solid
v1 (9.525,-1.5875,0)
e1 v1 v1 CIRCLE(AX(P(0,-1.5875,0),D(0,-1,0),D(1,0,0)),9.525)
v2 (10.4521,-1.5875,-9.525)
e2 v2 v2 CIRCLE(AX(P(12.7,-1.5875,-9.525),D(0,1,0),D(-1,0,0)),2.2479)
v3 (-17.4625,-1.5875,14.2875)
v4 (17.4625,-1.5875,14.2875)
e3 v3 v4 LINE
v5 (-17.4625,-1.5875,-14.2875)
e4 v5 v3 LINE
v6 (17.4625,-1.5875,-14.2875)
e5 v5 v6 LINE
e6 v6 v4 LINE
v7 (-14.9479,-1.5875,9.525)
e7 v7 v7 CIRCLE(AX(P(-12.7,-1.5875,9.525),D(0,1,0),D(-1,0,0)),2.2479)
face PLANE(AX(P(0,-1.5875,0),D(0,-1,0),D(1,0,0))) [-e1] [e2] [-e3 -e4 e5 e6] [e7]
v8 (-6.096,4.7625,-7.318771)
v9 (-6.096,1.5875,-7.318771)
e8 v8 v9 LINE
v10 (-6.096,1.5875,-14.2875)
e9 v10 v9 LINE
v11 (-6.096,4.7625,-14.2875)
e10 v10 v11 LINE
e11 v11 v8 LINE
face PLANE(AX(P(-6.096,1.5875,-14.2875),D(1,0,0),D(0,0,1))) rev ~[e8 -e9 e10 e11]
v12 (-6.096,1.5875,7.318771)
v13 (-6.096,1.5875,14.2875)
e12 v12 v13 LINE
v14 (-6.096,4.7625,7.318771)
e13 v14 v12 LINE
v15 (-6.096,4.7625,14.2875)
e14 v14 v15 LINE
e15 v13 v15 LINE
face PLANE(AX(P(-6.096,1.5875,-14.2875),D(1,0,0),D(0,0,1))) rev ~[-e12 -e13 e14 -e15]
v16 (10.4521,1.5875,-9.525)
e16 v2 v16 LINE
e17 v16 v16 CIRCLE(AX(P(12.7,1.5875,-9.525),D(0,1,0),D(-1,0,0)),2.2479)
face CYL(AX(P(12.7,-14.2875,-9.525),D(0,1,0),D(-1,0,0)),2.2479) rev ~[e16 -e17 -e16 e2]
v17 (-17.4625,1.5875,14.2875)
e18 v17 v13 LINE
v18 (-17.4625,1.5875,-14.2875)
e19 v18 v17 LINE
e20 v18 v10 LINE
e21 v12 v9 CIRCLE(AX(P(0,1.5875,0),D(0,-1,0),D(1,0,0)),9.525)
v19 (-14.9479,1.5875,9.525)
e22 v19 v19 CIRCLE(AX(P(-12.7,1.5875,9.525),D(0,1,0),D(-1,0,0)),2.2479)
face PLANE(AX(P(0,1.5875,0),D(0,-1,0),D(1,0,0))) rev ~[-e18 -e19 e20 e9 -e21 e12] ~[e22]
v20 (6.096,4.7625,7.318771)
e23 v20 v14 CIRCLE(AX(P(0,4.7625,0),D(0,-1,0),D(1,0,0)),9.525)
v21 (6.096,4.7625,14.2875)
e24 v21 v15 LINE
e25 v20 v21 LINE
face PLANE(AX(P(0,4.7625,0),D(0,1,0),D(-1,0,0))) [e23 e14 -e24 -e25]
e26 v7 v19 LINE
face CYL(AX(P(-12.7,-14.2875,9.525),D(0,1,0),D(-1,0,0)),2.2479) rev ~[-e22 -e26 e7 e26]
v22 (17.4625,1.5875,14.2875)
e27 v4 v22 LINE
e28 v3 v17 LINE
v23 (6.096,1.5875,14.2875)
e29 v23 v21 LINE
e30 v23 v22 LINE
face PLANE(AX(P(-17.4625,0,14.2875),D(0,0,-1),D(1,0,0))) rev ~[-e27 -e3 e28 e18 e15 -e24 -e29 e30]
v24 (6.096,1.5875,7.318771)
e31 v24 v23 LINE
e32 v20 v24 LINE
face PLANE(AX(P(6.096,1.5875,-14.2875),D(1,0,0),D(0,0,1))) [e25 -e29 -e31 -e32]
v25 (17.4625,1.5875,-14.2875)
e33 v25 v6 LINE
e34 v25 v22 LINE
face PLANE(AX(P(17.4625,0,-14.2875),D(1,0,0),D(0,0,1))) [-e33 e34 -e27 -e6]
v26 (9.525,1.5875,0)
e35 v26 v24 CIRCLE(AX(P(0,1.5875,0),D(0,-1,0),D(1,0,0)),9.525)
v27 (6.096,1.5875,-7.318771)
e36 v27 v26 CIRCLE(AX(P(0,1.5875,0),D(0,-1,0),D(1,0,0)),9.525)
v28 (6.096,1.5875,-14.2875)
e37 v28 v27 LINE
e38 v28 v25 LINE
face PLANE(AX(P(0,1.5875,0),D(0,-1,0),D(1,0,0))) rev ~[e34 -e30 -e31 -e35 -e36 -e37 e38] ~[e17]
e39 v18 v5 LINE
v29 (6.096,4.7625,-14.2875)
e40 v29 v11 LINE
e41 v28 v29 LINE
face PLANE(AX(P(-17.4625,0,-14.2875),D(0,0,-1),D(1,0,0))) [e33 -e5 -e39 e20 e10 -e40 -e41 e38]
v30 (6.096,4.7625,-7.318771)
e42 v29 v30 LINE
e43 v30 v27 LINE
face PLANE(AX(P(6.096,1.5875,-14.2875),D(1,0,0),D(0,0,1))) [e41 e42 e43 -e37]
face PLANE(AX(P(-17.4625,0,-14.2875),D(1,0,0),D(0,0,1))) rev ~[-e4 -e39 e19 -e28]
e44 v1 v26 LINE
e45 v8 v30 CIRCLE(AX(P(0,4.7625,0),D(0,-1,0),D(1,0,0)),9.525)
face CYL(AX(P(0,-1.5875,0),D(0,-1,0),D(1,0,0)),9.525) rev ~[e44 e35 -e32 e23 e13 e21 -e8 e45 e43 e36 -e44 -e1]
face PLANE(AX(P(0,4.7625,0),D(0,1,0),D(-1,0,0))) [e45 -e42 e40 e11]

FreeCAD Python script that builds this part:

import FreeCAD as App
import Part
import Sketcher
Q = App.Units.Quantity

doc = App.newDocument("Part")
body = doc.addObject("PartDesign::Body", "Body")

# Sketch on XZ plane
sketch1 = body.newObject("Sketcher::SketchObject", "Sketch")
sketch1.AttachmentSupport = (doc.getObject("XZ_Plane"), [""])
sketch1.MapMode = "FlatFace"
sketch1.addGeometry(Part.LineSegment(App.Vector(-17.4625, 14.2875, 0), App.Vector(-17.4625, -14.2875, 0)), False)
sketch1.addGeometry(Part.LineSegment(App.Vector(-17.4625, -14.2875, 0), App.Vector(17.4625, -14.2875, 0)), False)
sketch1.addGeometry(Part.LineSegment(App.Vector(17.4625, -14.2875, 0), App.Vector(17.4625, 14.2875, 0)), False)
sketch1.addGeometry(Part.LineSegment(App.Vector(17.4625, 14.2875, 0), App.Vector(-17.4625, 14.2875, 0)), False)
sketch1.addConstraint(Sketcher.Constraint("Coincident", 0, 2, 1, 1))
sketch1.addConstraint(Sketcher.Constraint("Coincident", 1, 2, 2, 1))
sketch1.addConstraint(Sketcher.Constraint("Coincident", 2, 2, 3, 1))
sketch1.addConstraint(Sketcher.Constraint("Coincident", 3, 2, 0, 1))
sketch1.addConstraint(Sketcher.Constraint("Vertical", 0))
sketch1.addConstraint(Sketcher.Constraint("Horizontal", 1))
sketch1.addConstraint(Sketcher.Constraint("Vertical", 2))
sketch1.addConstraint(Sketcher.Constraint("Horizontal", 3))
sketch1.addConstraint(Sketcher.Constraint("Symmetric", 0, 2, 2, 2, -1, 1))
sketch1.addConstraint(Sketcher.Constraint("DistanceX", 1, 1, 1, 2, Q("1.375 in")))
sketch1.addConstraint(Sketcher.Constraint("DistanceY", 0, 2, 0, 1, Q("1.125 in")))
pad1 = body.newObject("PartDesign::Pad", "Pad")
pad1.Profile = sketch1
pad1.Length = Q("0.125 in")
pad1.Midplane = True

# Sketch on XZ plane
sketch2 = body.newObject("Sketcher::SketchObject", "Sketch001")
sketch2.AttachmentSupport = (doc.getObject("XZ_Plane"), [""])
sketch2.MapMode = "FlatFace"
sketch2.AttachmentOffset = App.Placement(App.Vector(0, 0, 0.0625 * 25.4), App.Rotation())
sketch2.addGeometry(Part.Circle(App.Vector(-12.7, 9.525, 0), App.Vector(0, 0, 1), 2.2479), False)
sketch2.addGeometry(Part.Circle(App.Vector(12.7, -9.525, 0), App.Vector(0, 0, 1), 2.2479), False)
sketch2.addConstraint(Sketcher.Constraint("Equal", 0, 1))
sketch2.addConstraint(Sketcher.Constraint("Symmetric", 0, 3, 1, 3, -1, 1))
sketch2.addConstraint(Sketcher.Constraint("Diameter", 0, Q("0.177 in")))
sketch2.addConstraint(Sketcher.Constraint("DistanceX", 0, 3, 1, 3, Q("1 in")))
sketch2.addConstraint(Sketcher.Constraint("DistanceY", 1, 3, 0, 3, Q("0.75 in")))
doc.recompute()
hole = body.newObject("PartDesign::Hole", "Hole")
hole.Profile = sketch2
hole.ThreadType = "None"
hole.Diameter = Q("0.177 in")
hole.DepthType = "Dimension"
hole.Depth = Q("0.5 in")
hole.DrillPoint = "Angled"
hole.DrillPointAngle = 118

# Sketch on XZ plane
sketch3 = body.newObject("Sketcher::SketchObject", "Sketch002")
sketch3.AttachmentSupport = (doc.getObject("XZ_Plane"), [""])
sketch3.MapMode = "FlatFace"
sketch3.AttachmentOffset = App.Placement(App.Vector(0, 0, -0.0625 * 25.4), App.Rotation())
sketch3.addGeometry(Part.LineSegment(App.Vector(6.096, 14.2875, 0), App.Vector(6.096, -14.2875, 0)), False)
sketch3.addGeometry(Part.LineSegment(App.Vector(6.096, -14.2875, 0), App.Vector(-6.096, -14.2875, 0)), False)
sketch3.addGeometry(Part.LineSegment(App.Vector(-6.096, -14.2875, 0), App.Vector(-6.096, 14.2875, 0)), False)
sketch3.addGeometry(Part.LineSegment(App.Vector(-6.096, 14.2875, 0), App.Vector(6.096, 14.2875, 0)), False)
sketch3.addConstraint(Sketcher.Constraint("Coincident", 0, 2, 1, 1))
sketch3.addConstraint(Sketcher.Constraint("Coincident", 1, 2, 2, 1))
sketch3.addConstraint(Sketcher.Constraint("Coincident", 2, 2, 3, 1))
sketch3.addConstraint(Sketcher.Constraint("Coincident", 3, 2, 0, 1))
sketch3.addConstraint(Sketcher.Constraint("Vertical", 0))
sketch3.addConstraint(Sketcher.Constraint("Horizontal", 1))
sketch3.addConstraint(Sketcher.Constraint("Vertical", 2))
sketch3.addConstraint(Sketcher.Constraint("Horizontal", 3))
sketch3.addConstraint(Sketcher.Constraint("Symmetric", 0, 2, 2, 2, -1, 1))
sketch3.addConstraint(Sketcher.Constraint("DistanceX", 1, 2, 1, 1, Q("0.48 in")))
sketch3.addConstraint(Sketcher.Constraint("DistanceY", 0, 2, 0, 1, Q("1.125 in")))
pad2 = body.newObject("PartDesign::Pad", "Pad001")
pad2.Profile = sketch3
pad2.Length = Q("0.125 in")
pad2.Reversed = True

# Sketch on XZ plane
sketch4 = body.newObject("Sketcher::SketchObject", "Sketch003")
sketch4.AttachmentSupport = (doc.getObject("XZ_Plane"), [""])
sketch4.MapMode = "FlatFace"
sketch4.AttachmentOffset = App.Placement(App.Vector(0, 0, 0.0625 * 25.4), App.Rotation())
sketch4.addGeometry(Part.Circle(App.Vector(0, 0, 0), App.Vector(0, 0, 1), 9.525), False)
sketch4.addConstraint(Sketcher.Constraint("Coincident", 0, 3, -1, 1))
sketch4.addConstraint(Sketcher.Constraint("Diameter", 0, Q("0.75 in")))
pocket1 = body.newObject("PartDesign::Pocket", "Pocket")
pocket1.Profile = sketch4
pocket1.Type = "ThroughAll"

doc.recompute()
